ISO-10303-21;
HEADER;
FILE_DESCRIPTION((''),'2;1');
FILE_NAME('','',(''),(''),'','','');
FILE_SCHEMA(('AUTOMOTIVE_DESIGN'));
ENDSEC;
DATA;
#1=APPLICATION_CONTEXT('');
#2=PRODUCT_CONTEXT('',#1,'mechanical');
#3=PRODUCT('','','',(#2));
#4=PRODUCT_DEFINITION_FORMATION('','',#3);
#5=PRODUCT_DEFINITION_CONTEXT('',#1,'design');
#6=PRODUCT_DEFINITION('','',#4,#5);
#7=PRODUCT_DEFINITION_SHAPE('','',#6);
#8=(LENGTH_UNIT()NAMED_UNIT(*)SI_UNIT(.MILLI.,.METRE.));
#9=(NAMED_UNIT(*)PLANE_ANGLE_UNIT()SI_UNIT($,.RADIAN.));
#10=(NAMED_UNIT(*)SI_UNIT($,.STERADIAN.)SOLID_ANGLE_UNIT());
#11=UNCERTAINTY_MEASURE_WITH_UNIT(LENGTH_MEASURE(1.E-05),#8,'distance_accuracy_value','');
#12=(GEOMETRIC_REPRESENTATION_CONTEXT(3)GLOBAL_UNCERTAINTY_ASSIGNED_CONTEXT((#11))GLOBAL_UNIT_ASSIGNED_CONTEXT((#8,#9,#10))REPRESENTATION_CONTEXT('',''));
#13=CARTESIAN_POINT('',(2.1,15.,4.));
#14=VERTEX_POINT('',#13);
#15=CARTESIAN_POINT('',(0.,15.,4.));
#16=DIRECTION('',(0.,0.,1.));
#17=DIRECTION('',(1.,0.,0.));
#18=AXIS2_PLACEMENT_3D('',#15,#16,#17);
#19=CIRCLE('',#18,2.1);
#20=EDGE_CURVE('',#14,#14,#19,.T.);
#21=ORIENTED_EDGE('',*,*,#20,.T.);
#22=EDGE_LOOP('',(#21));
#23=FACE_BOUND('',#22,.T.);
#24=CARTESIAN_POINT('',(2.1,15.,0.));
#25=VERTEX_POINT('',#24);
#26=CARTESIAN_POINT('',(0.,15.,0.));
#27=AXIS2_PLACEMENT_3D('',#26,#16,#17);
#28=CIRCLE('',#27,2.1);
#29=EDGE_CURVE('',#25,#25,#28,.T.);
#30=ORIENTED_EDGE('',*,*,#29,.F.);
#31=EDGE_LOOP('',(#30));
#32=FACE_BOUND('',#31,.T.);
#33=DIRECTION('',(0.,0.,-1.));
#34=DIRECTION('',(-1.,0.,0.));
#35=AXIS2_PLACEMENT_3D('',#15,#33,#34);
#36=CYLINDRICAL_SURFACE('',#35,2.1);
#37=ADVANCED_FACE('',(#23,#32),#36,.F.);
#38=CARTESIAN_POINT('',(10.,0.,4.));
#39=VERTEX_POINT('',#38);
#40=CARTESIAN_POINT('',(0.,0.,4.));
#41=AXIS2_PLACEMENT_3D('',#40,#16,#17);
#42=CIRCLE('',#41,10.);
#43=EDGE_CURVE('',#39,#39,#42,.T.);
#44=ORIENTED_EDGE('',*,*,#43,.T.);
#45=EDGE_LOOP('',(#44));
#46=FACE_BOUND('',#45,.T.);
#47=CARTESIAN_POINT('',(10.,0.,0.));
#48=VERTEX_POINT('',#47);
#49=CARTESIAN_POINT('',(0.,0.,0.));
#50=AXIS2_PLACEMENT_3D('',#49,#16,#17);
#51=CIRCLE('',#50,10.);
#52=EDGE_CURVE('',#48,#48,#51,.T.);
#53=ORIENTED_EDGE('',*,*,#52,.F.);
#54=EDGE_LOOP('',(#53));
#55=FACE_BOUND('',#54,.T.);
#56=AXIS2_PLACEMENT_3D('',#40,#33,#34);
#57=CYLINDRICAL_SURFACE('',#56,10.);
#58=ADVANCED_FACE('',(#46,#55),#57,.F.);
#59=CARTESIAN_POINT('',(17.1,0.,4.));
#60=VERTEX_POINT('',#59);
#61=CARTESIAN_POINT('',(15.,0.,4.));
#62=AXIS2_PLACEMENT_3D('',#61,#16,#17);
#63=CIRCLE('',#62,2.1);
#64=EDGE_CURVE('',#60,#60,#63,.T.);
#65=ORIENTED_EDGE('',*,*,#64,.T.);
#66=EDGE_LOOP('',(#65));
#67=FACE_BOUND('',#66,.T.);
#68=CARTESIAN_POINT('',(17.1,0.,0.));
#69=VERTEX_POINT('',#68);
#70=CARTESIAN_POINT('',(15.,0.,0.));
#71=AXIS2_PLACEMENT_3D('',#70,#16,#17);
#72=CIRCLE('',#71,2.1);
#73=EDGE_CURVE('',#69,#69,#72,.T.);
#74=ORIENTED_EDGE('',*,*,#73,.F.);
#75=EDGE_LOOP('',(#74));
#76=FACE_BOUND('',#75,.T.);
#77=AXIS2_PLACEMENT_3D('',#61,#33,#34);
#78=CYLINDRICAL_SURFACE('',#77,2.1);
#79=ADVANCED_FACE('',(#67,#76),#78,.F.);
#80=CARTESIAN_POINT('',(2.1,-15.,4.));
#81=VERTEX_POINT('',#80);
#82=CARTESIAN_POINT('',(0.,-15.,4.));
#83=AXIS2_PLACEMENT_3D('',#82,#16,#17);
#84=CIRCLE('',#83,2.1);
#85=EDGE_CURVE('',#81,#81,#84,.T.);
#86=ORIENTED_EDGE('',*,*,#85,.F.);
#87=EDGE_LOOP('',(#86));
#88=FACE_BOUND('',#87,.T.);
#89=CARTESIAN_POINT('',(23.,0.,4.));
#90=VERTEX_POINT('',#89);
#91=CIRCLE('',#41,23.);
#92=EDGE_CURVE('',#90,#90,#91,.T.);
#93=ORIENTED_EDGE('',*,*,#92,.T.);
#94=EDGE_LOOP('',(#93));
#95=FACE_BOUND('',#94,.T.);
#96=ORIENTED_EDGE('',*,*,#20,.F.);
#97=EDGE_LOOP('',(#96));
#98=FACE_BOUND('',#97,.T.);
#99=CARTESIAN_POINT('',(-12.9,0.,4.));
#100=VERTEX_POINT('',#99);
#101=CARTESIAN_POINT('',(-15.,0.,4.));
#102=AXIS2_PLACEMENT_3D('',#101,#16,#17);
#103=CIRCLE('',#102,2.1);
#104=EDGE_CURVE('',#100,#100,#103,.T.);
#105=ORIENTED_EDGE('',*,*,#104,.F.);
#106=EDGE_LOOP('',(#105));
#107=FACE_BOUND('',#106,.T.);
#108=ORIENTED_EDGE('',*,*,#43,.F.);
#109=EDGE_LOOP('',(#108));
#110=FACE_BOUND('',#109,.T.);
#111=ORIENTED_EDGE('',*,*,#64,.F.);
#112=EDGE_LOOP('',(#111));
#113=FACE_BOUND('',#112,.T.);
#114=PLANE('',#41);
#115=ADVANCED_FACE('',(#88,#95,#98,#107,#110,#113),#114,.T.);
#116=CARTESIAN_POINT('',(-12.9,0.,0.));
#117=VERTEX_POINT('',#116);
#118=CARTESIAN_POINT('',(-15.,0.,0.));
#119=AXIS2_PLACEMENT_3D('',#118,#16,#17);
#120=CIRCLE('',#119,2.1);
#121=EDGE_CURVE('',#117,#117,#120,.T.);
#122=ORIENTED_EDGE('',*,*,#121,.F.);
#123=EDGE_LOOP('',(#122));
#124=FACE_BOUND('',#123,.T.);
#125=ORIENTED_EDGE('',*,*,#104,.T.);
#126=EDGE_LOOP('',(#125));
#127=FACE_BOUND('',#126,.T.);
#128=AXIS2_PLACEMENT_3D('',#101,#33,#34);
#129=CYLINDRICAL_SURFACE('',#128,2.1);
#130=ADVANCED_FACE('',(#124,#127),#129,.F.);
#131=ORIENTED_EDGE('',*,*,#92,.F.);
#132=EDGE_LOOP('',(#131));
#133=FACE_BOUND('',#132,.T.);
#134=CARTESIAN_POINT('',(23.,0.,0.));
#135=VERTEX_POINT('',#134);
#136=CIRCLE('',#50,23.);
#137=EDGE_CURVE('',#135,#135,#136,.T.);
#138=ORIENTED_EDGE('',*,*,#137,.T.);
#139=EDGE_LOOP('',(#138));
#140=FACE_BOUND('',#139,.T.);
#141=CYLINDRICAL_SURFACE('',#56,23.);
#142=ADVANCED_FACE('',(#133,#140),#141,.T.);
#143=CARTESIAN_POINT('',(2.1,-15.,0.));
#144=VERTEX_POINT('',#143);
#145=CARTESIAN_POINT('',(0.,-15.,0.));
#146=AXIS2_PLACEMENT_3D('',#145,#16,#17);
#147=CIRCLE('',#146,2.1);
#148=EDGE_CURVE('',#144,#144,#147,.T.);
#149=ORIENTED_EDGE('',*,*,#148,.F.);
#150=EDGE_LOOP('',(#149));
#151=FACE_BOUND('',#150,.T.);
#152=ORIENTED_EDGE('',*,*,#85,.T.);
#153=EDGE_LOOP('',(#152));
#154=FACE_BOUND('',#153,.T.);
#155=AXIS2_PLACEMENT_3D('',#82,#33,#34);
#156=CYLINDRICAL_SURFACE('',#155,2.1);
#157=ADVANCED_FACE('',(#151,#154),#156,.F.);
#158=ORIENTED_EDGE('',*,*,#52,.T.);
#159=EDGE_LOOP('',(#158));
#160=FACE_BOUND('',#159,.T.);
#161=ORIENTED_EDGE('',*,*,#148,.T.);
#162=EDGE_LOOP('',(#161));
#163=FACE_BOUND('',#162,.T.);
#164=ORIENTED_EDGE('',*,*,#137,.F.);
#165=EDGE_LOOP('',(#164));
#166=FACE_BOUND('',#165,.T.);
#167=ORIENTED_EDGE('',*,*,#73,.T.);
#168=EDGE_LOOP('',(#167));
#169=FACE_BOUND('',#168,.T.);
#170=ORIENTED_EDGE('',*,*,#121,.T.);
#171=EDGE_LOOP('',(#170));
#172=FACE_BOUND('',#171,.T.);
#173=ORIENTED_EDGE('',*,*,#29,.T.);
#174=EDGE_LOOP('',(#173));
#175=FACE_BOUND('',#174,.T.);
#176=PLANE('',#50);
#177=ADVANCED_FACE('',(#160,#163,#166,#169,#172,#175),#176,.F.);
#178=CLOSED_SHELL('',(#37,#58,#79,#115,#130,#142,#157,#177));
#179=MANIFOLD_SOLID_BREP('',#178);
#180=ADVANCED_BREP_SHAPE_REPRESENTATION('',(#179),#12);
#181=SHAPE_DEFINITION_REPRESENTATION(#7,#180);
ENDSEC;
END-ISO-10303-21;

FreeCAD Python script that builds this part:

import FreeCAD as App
import Part
import Sketcher
from FreeCAD import Vector

doc = App.newDocument("Part")
body = doc.addObject("PartDesign::Body", "Body")

sketch1 = body.newObject("Sketcher::SketchObject", "Sketch")
sketch1.AttachmentSupport = (doc.getObject("XY_Plane"), [""])
sketch1.MapMode = "FlatFace"
sketch1.addGeometry([
    Part.Circle(Vector(0, 0, 0), Vector(0, 0, 1), 23),
    Part.Circle(Vector(0, -15, 0), Vector(0, 0, 1), 2.1),
    Part.Circle(Vector(-15, 0, 0), Vector(0, 0, 1), 2.1),
    Part.Circle(Vector(0, 15, 0), Vector(0, 0, 1), 2.1),
    Part.Circle(Vector(0, 0, 0), Vector(0, 0, 1), 10),
    Part.Circle(Vector(15, 0, 0), Vector(0, 0, 1), 2.1),
], False)
sketch1.addConstraint([
    Sketcher.Constraint("Coincident", 0, 3, -1, 1),
    Sketcher.Constraint("Coincident", 4, 3, -1, 1),
    Sketcher.Constraint("Equal", 1, 2),
    Sketcher.Constraint("Equal", 2, 3),
    Sketcher.Constraint("Equal", 3, 5),
    Sketcher.Constraint("Symmetric", 1, 3, 3, 3, -1, 1),
    Sketcher.Constraint("Symmetric", 2, 3, 5, 3, -1, 1),
    Sketcher.Constraint("PointOnObject", 1, 3, -2),
    Sketcher.Constraint("PointOnObject", 2, 3, -1),
    Sketcher.Constraint("Diameter", 0, 46.0),
    Sketcher.Constraint("Diameter", 4, 20.0),
    Sketcher.Constraint("Diameter", 1, 4.2),
    Sketcher.Constraint("DistanceY", 1, 3, -1, 1, 15.0),
    Sketcher.Constraint("DistanceX", 2, 3, -1, 1, 15.0),
])
pad1 = body.newObject("PartDesign::Pad", "Pad")
pad1.Profile = sketch1
pad1.Length = 4

doc.recompute()
